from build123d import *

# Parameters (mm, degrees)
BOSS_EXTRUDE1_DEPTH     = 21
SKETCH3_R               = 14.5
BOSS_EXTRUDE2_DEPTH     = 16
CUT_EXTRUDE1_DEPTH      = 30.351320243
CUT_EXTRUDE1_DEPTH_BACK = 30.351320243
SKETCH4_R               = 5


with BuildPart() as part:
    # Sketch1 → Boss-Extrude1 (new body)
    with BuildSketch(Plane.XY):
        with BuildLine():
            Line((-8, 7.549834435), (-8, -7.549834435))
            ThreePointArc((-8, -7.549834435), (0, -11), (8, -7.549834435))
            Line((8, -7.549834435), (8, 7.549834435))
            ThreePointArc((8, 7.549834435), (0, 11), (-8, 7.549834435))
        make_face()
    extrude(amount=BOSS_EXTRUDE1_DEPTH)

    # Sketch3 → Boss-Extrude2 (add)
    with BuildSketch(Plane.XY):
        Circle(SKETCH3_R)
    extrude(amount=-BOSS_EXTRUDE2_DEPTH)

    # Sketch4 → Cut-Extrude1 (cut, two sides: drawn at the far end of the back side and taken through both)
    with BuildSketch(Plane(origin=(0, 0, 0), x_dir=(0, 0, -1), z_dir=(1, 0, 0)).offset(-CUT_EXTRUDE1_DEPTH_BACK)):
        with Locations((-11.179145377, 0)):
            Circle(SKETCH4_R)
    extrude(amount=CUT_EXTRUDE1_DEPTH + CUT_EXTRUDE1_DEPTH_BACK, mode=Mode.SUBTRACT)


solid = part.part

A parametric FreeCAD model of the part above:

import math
import FreeCAD as App
import Part
import Sketcher

doc = App.newDocument("Part")
body = doc.addObject("PartDesign::Body", "Body")

# Sketch on XY plane
sketch1 = doc.addObject("Sketcher::SketchObject", "Sketch")
body.addObject(sketch1)
sketch1.AttachmentSupport = (doc.XY_Plane, [""])
sketch1.MapMode = "FlatFace"
sketch1.addGeometry([
    Part.LineSegment(App.Vector(-8, 7.549834, 0), App.Vector(-8, -7.549834, 0)),
    Part.ArcOfCircle(Part.Circle(App.Vector(0, 0, 0), App.Vector(0, 0, 1), 11), math.radians(-136.658242), math.radians(-43.341758)),
    Part.LineSegment(App.Vector(8, -7.549834, 0), App.Vector(8, 7.549834, 0)),
    Part.ArcOfCircle(Part.Circle(App.Vector(0, 0, 0), App.Vector(0, 0, 1), 11), math.radians(43.341758), math.radians(136.658242)),
], False)
sketch1.addConstraint([
    Sketcher.Constraint("Coincident", 0, 2, 1, 1),
    Sketcher.Constraint("Coincident", 1, 2, 2, 1),
    Sketcher.Constraint("Coincident", 2, 2, 3, 1),
    Sketcher.Constraint("Coincident", 3, 2, 0, 1),
    Sketcher.Constraint("Vertical", 0),
    Sketcher.Constraint("Vertical", 2),
    Sketcher.Constraint("Coincident", 1, 3, -1, 1),
    Sketcher.Constraint("Coincident", 3, 3, -1, 1),
    Sketcher.Constraint("Equal", 1, 3),
    Sketcher.Constraint("Horizontal", 0, 2, 1, 2),
    Sketcher.Constraint("Radius", 1, 11.0),
    Sketcher.Constraint("DistanceX", 0, 2, -1, 1, 8.0),
])
pad1 = doc.addObject("PartDesign::Pad", "Pad")
body.addObject(pad1)
pad1.Profile = sketch1
pad1.Length = 21

# Sketch on XY plane
sketch2 = doc.addObject("Sketcher::SketchObject", "Sketch001")
body.addObject(sketch2)
sketch2.AttachmentSupport = (doc.XY_Plane, [""])
sketch2.MapMode = "FlatFace"
sketch2.addGeometry(Part.Circle(App.Vector(0, 0, 0), App.Vector(0, 0, 1), 14.5), False)
sketch2.addConstraint([
    Sketcher.Constraint("Coincident", 0, 3, -1, 1),
    Sketcher.Constraint("Diameter", 0, 29.0),
])
pad2 = doc.addObject("PartDesign::Pad", "Pad001")
body.addObject(pad2)
pad2.Profile = sketch2
pad2.Length = 16
pad2.Reversed = True

# Sketch on YZ plane
sketch3 = doc.addObject("Sketcher::SketchObject", "Sketch002")
body.addObject(sketch3)
sketch3.AttachmentSupport = (doc.YZ_Plane, [""])
sketch3.MapMode = "FlatFace"
sketch3.addGeometry(Part.Circle(App.Vector(0, 11.179145, 0), App.Vector(0, 0, 1), 5), False)
sketch3.addConstraint([
    Sketcher.Constraint("PointOnObject", 0, 3, -2),
    Sketcher.Constraint("Diameter", 0, 10.0),
    Sketcher.Constraint("DistanceY", -1, 1, 0, 3, 11.179145),
])
pocket1 = doc.addObject("PartDesign::Pocket", "Pocket")
body.addObject(pocket1)
pocket1.Profile = sketch3
pocket1.Type = "ThroughAll"
pocket1.Midplane = True

doc.recompute()
